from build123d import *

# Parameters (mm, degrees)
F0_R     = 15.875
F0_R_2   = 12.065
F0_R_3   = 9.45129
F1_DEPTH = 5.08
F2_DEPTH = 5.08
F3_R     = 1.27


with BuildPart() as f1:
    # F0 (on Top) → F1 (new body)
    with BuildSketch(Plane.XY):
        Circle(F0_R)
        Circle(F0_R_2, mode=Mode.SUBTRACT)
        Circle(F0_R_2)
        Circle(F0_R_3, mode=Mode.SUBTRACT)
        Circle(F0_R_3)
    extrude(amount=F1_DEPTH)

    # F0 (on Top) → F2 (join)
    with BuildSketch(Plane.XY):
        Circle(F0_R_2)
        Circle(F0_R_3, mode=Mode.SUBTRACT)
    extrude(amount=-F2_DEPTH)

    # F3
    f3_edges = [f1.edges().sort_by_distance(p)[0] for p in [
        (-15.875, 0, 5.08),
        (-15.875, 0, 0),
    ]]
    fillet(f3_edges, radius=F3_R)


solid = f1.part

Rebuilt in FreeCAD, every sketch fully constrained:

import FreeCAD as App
import Part
import Sketcher
from FreeCAD import Vector
Q = App.Units.Quantity


def edges_at(feature, points):
    """Names of the edges that pass closest to the given points."""
    edges = feature.Shape.Edges
    near = lambda p: min(range(len(edges)), key=lambda i: edges[i].distToShape(Part.Vertex(*p))[0])
    return sorted({f"Edge{near(p) + 1}" for p in points})

doc = App.newDocument("Part")
body = doc.addObject("PartDesign::Body", "Body")

# Sketch on XY plane
sketch1 = body.newObject("Sketcher::SketchObject", "Sketch")
sketch1.AttachmentSupport = (doc.getObject("XY_Plane"), [""])
sketch1.MapMode = "FlatFace"
sketch1.addGeometry(Part.Circle(Vector(0, 0, 0), Vector(0, 0, 1), 16), False)
sketch1.addConstraint(Sketcher.Constraint("Coincident", 0, 3, -1, 1))
sketch1.addConstraint(Sketcher.Constraint("Diameter", 0, Q("1.25 in")))
pad1 = body.newObject("PartDesign::Pad", "Pad")
pad1.Profile = sketch1
pad1.Length = Q("0.2 in")

# Sketch on XY plane
sketch2 = body.newObject("Sketcher::SketchObject", "Sketch001")
sketch2.AttachmentSupport = (doc.getObject("XY_Plane"), [""])
sketch2.MapMode = "FlatFace"
sketch2.addGeometry(Part.Circle(Vector(0, 0, 0), Vector(0, 0, 1), 12), False)
sketch2.addGeometry(Part.Circle(Vector(0, 0, 0), Vector(0, 0, 1), 9), False)
sketch2.addConstraint(Sketcher.Constraint("Coincident", 0, 3, -1, 1))
sketch2.addConstraint(Sketcher.Constraint("Coincident", 1, 3, -1, 1))
sketch2.addConstraint(Sketcher.Constraint("Diameter", 0, Q("0.95 in")))
sketch2.addConstraint(Sketcher.Constraint("Diameter", 1, 18.90258))
pad2 = body.newObject("PartDesign::Pad", "Pad001")
pad2.Profile = sketch2
pad2.Length = Q("0.2 in")
pad2.Reversed = True
doc.recompute()

fillet = body.newObject("PartDesign::Fillet", "Fillet")
fillet.Base = (pad2, edges_at(pad2, [(-15.875, 0, 5.08), (-15.875, 0, 0)]))
fillet.Radius = Q("0.05 in")

doc.recompute()
